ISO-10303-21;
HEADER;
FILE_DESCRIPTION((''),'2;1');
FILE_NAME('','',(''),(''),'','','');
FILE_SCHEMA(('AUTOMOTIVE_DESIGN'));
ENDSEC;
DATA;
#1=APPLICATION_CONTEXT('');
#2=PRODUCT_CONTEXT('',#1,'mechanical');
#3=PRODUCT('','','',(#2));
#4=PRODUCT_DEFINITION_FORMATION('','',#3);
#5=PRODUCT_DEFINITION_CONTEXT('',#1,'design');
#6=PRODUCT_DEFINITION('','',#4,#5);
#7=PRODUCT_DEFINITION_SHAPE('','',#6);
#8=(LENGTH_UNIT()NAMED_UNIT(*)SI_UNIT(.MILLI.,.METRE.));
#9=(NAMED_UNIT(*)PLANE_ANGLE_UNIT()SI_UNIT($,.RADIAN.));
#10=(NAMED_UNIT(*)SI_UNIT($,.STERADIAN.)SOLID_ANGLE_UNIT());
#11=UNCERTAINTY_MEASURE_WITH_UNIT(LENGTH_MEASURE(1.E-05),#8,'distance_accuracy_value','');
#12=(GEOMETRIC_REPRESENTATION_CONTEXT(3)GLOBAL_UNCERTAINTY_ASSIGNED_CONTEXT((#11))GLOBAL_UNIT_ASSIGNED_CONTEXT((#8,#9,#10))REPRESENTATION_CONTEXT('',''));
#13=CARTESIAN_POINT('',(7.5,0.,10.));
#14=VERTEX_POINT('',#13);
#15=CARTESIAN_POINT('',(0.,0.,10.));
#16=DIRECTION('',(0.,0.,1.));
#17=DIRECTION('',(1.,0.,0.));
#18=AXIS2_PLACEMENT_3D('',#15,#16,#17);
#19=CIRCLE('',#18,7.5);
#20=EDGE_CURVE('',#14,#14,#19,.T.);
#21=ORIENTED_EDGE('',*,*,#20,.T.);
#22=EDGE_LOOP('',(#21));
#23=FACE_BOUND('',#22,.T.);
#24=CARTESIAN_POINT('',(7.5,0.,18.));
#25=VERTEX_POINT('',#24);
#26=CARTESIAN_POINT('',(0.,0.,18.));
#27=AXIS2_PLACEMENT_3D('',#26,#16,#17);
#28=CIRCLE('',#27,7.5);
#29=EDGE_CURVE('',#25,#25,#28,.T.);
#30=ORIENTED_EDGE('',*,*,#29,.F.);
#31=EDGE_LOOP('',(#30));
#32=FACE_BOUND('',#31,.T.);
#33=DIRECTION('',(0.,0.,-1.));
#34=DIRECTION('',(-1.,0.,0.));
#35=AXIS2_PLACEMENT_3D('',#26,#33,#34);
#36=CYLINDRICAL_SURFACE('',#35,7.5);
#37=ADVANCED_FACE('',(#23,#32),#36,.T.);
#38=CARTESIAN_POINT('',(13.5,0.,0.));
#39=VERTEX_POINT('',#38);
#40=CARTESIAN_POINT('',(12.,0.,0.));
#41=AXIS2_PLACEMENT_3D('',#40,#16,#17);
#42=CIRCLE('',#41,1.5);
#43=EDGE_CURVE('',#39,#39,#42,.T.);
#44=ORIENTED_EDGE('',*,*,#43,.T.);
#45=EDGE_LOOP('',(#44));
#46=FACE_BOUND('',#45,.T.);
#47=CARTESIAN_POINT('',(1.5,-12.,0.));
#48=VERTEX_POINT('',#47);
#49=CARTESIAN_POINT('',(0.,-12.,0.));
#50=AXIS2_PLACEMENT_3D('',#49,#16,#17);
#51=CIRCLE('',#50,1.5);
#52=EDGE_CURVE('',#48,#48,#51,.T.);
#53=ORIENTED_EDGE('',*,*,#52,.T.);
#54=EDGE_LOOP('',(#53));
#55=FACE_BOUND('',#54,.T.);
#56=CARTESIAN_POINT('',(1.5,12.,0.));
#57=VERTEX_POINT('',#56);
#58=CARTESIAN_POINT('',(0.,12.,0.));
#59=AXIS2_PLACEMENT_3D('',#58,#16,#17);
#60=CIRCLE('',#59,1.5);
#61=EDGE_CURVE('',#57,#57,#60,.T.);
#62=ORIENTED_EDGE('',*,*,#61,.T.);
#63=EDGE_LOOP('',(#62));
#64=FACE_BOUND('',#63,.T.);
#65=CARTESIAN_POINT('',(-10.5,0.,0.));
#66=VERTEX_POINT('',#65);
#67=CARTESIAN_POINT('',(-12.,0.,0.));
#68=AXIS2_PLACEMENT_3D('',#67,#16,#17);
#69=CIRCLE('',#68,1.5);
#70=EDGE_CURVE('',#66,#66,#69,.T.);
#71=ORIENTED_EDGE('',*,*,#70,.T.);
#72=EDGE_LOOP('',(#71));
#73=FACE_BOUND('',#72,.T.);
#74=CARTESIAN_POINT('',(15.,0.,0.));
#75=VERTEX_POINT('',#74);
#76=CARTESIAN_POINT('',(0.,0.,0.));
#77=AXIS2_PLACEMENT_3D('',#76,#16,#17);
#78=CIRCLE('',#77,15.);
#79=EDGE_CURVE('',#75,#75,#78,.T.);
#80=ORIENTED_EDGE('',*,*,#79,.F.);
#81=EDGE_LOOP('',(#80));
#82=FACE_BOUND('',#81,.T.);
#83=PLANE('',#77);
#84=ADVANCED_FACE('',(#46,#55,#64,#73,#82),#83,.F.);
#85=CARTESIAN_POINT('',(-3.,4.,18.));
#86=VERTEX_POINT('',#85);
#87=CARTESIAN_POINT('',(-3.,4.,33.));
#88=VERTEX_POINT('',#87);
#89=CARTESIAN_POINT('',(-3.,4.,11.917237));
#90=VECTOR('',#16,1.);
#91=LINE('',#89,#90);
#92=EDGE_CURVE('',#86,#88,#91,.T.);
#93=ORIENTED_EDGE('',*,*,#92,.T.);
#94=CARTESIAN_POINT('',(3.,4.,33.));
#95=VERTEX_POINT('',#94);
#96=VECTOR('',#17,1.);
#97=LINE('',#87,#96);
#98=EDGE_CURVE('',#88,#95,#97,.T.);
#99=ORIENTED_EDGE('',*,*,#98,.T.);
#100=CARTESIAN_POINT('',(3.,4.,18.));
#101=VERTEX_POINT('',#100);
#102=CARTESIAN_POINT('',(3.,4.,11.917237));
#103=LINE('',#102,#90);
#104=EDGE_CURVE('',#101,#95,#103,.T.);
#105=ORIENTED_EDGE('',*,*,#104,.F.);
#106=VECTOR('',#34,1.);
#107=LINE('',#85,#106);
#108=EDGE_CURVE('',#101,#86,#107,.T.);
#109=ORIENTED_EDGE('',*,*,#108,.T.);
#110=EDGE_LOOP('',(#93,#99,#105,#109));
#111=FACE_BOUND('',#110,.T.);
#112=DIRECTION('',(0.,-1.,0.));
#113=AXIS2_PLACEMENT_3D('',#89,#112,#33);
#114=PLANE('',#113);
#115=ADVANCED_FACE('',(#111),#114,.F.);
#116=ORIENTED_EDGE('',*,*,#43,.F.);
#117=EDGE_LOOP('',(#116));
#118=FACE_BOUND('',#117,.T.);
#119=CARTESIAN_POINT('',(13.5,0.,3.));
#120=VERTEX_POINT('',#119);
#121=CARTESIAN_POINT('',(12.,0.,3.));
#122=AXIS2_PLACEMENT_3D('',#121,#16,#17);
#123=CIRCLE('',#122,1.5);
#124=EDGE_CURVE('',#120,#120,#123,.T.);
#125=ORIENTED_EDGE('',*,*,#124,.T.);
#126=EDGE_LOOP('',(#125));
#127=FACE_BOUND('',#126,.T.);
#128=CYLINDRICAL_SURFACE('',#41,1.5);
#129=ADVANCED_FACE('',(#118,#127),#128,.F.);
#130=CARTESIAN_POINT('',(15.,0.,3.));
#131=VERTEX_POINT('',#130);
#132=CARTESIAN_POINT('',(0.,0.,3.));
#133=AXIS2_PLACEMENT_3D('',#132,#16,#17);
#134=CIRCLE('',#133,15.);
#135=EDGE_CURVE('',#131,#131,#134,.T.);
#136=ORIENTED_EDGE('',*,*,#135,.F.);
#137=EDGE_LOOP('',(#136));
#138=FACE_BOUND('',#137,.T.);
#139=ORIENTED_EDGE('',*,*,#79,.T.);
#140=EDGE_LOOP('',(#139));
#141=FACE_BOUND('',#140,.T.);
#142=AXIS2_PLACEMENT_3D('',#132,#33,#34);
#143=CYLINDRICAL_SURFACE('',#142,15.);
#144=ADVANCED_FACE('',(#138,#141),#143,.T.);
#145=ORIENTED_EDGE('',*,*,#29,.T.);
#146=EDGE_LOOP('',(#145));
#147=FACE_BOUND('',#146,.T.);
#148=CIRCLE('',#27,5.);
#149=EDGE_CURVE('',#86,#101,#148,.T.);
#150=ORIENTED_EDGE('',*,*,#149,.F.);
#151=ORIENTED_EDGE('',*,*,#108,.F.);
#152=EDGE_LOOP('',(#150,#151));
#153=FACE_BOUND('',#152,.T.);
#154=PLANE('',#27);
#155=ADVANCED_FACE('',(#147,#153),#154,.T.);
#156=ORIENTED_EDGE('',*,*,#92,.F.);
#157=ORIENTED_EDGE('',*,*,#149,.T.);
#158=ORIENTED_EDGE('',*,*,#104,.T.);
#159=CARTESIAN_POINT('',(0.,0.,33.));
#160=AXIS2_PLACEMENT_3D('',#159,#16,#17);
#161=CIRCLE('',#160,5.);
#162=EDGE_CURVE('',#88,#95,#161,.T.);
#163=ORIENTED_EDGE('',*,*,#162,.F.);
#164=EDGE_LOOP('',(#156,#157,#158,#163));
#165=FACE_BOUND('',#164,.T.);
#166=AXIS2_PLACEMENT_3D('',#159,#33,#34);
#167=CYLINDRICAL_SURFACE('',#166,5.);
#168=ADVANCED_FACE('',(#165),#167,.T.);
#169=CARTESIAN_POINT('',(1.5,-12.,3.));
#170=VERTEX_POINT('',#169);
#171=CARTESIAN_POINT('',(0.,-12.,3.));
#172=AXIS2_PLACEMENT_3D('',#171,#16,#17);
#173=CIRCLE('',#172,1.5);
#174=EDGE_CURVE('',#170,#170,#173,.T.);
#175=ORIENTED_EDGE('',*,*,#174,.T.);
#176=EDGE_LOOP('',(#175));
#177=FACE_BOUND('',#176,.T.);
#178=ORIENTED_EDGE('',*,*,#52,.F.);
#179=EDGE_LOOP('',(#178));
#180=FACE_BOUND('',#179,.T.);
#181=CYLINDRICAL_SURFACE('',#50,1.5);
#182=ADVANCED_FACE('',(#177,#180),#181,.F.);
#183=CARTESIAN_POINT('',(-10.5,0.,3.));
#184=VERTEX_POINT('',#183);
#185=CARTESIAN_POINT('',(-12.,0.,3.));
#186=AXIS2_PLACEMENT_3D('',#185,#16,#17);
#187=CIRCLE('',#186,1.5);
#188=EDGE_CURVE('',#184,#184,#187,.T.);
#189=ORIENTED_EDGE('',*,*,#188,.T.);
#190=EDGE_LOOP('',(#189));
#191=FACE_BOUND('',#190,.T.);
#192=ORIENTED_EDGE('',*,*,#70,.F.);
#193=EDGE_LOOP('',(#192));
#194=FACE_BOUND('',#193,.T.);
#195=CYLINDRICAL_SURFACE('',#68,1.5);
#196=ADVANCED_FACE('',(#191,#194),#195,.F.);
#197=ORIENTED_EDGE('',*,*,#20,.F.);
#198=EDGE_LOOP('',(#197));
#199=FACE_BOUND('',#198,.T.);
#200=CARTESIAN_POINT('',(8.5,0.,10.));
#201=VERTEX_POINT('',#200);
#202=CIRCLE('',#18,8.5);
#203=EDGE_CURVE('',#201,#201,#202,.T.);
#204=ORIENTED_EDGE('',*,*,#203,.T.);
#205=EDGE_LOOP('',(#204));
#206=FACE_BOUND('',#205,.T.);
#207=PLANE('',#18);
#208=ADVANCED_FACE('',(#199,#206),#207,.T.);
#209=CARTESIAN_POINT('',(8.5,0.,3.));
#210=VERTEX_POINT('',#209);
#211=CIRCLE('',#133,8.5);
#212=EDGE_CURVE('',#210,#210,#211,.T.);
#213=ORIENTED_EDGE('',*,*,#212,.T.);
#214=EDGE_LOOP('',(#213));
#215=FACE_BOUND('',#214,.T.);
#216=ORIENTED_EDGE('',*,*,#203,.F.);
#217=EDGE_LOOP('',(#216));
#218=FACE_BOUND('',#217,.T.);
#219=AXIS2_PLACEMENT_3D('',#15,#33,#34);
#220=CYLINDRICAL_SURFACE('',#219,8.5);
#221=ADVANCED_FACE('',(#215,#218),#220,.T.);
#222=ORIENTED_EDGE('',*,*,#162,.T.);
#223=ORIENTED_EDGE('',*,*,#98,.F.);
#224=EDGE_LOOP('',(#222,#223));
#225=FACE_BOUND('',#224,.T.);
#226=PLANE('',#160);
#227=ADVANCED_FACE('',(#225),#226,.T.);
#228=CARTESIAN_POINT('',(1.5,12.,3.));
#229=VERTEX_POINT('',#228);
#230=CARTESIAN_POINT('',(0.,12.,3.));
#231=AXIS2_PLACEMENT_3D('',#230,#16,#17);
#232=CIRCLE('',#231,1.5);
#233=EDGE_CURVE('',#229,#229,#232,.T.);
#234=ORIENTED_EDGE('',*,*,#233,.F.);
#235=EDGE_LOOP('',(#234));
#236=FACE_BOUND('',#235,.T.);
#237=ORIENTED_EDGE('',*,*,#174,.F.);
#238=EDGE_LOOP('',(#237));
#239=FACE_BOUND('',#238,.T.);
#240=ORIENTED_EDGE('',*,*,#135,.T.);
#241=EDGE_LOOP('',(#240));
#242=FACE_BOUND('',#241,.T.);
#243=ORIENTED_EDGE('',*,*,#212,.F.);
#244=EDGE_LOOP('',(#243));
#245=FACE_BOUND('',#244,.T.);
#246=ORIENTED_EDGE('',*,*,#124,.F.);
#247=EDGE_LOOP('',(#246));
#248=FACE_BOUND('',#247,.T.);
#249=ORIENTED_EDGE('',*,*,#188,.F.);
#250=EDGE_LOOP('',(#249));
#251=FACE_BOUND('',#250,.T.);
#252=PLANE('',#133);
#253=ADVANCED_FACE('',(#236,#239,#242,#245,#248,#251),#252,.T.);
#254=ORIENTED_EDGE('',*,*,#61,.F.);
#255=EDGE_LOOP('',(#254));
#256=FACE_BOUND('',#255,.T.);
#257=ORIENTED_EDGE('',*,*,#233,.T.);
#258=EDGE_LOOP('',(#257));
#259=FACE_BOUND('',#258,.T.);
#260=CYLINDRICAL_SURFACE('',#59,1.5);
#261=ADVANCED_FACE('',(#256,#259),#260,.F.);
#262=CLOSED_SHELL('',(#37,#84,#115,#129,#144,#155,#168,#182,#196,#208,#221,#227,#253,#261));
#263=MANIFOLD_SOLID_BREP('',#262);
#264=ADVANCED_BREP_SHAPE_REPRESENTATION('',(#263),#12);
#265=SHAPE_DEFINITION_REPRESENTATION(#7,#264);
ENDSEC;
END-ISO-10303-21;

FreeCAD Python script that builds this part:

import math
import FreeCAD as App
import Part
import Sketcher

V = App.Vector

doc = App.newDocument("Part")
body = doc.addObject("PartDesign::Body", "Body")

sketch1 = doc.addObject("Sketcher::SketchObject", "Sketch")
body.addObject(sketch1)
sketch1.AttachmentSupport = (doc.XY_Plane, [""])
sketch1.MapMode = "FlatFace"
sketch1.addGeometry(Part.Circle(V(0, 0, 0), V(0, 0, 1), 15), False)
sketch1.addConstraint([
    Sketcher.Constraint("Coincident", 0, 3, -1, 1),
    Sketcher.Constraint("Diameter", 0, 30.0),
])
pad1 = doc.addObject("PartDesign::Pad", "Pad")
body.addObject(pad1)
pad1.Profile = sketch1
pad1.Length = 3

sketch2 = doc.addObject("Sketcher::SketchObject", "Sketch001")
body.addObject(sketch2)
sketch2.AttachmentSupport = (doc.XY_Plane, [""])
sketch2.MapMode = "FlatFace"
sketch2.AttachmentOffset = App.Placement(V(0, 0, 3), App.Rotation())
sketch2.addGeometry([
    Part.Circle(V(0, 12, 0), V(0, 0, 1), 1.5),
    Part.Circle(V(12, 0, 0), V(0, 0, 1), 1.5),
    Part.Circle(V(0, -12, 0), V(0, 0, 1), 1.5),
    Part.Circle(V(-12, 0, 0), V(0, 0, 1), 1.5),
], False)
sketch2.addConstraint([
    Sketcher.Constraint("Equal", 0, 1),
    Sketcher.Constraint("Equal", 1, 2),
    Sketcher.Constraint("Equal", 2, 3),
    Sketcher.Constraint("Symmetric", 0, 3, 2, 3, -1, 1),
    Sketcher.Constraint("Symmetric", 1, 3, 3, 3, -1, 1),
    Sketcher.Constraint("PointOnObject", 0, 3, -2),
    Sketcher.Constraint("PointOnObject", 1, 3, -1),
    Sketcher.Constraint("Diameter", 0, 3.0),
    Sketcher.Constraint("DistanceY", -1, 1, 0, 3, 12.0),
    Sketcher.Constraint("DistanceX", -1, 1, 1, 3, 12.0),
])
pocket1 = doc.addObject("PartDesign::Pocket", "Pocket")
body.addObject(pocket1)
pocket1.Profile = sketch2
pocket1.Type = "ThroughAll"

sketch3 = doc.addObject("Sketcher::SketchObject", "Sketch002")
body.addObject(sketch3)
sketch3.AttachmentSupport = (doc.XY_Plane, [""])
sketch3.MapMode = "FlatFace"
sketch3.AttachmentOffset = App.Placement(V(0, 0, 3), App.Rotation())
sketch3.addGeometry(Part.Circle(V(0, 0, 0), V(0, 0, 1), 5), False)
sketch3.addConstraint([
    Sketcher.Constraint("Coincident", 0, 3, -1, 1),
    Sketcher.Constraint("Diameter", 0, 10.0),
])
pad2 = doc.addObject("PartDesign::Pad", "Pad001")
body.addObject(pad2)
pad2.Profile = sketch3
pad2.Length = 30

sketch4 = doc.addObject("Sketcher::SketchObject", "Sketch003")
body.addObject(sketch4)
sketch4.AttachmentSupport = (doc.XY_Plane, [""])
sketch4.MapMode = "FlatFace"
sketch4.AttachmentOffset = App.Placement(V(0, 0, 3), App.Rotation())
sketch4.addGeometry(Part.Circle(V(0, 0, 0), V(0, 0, 1), 7.5), False)
sketch4.addConstraint([
    Sketcher.Constraint("Coincident", 0, 3, -1, 1),
    Sketcher.Constraint("Diameter", 0, 15.0),
])
pad3 = doc.addObject("PartDesign::Pad", "Pad002")
body.addObject(pad3)
pad3.Profile = sketch4
pad3.Length = 15

sketch5 = doc.addObject("Sketcher::SketchObject", "Sketch004")
body.addObject(sketch5)
sketch5.AttachmentSupport = (doc.XY_Plane, [""])
sketch5.MapMode = "FlatFace"
sketch5.AttachmentOffset = App.Placement(V(0, 0, 18), App.Rotation())
sketch5.addGeometry([
    Part.LineSegment(V(-3, 4, 0), V(3, 4, 0)),
    Part.ArcOfCircle(Part.Circle(V(0, 0, 0), V(0, 0, 1), 5), math.radians(53.130102), math.radians(126.869898)),
], False)
sketch5.addConstraint([
    Sketcher.Constraint("Coincident", 0, 1, 1, 2),
    Sketcher.Constraint("Coincident", 1, 1, 0, 2),
    Sketcher.Constraint("Horizontal", 0),
    Sketcher.Constraint("Coincident", 1, 3, -1, 1),
    Sketcher.Constraint("Radius", 1, 5.0),
    Sketcher.Constraint("DistanceX", 0, 1, 0, 2, 6.0),
])
pocket2 = doc.addObject("PartDesign::Pocket", "Pocket001")
body.addObject(pocket2)
pocket2.Profile = sketch5
pocket2.Length = 15
pocket2.Reversed = True

sketch6 = doc.addObject("Sketcher::SketchObject", "Sketch005")
body.addObject(sketch6)
sketch6.AttachmentSupport = (doc.XY_Plane, [""])
sketch6.MapMode = "FlatFace"
sketch6.AttachmentOffset = App.Placement(V(0, 0, 3), App.Rotation())
sketch6.addGeometry(Part.Circle(V(0, 0, 0), V(0, 0, 1), 8.5), False)
sketch6.addConstraint([
    Sketcher.Constraint("Coincident", 0, 3, -1, 1),
    Sketcher.Constraint("Diameter", 0, 17.0),
])
pad4 = doc.addObject("PartDesign::Pad", "Pad003")
body.addObject(pad4)
pad4.Profile = sketch6
pad4.Length = 7

doc.recompute()
